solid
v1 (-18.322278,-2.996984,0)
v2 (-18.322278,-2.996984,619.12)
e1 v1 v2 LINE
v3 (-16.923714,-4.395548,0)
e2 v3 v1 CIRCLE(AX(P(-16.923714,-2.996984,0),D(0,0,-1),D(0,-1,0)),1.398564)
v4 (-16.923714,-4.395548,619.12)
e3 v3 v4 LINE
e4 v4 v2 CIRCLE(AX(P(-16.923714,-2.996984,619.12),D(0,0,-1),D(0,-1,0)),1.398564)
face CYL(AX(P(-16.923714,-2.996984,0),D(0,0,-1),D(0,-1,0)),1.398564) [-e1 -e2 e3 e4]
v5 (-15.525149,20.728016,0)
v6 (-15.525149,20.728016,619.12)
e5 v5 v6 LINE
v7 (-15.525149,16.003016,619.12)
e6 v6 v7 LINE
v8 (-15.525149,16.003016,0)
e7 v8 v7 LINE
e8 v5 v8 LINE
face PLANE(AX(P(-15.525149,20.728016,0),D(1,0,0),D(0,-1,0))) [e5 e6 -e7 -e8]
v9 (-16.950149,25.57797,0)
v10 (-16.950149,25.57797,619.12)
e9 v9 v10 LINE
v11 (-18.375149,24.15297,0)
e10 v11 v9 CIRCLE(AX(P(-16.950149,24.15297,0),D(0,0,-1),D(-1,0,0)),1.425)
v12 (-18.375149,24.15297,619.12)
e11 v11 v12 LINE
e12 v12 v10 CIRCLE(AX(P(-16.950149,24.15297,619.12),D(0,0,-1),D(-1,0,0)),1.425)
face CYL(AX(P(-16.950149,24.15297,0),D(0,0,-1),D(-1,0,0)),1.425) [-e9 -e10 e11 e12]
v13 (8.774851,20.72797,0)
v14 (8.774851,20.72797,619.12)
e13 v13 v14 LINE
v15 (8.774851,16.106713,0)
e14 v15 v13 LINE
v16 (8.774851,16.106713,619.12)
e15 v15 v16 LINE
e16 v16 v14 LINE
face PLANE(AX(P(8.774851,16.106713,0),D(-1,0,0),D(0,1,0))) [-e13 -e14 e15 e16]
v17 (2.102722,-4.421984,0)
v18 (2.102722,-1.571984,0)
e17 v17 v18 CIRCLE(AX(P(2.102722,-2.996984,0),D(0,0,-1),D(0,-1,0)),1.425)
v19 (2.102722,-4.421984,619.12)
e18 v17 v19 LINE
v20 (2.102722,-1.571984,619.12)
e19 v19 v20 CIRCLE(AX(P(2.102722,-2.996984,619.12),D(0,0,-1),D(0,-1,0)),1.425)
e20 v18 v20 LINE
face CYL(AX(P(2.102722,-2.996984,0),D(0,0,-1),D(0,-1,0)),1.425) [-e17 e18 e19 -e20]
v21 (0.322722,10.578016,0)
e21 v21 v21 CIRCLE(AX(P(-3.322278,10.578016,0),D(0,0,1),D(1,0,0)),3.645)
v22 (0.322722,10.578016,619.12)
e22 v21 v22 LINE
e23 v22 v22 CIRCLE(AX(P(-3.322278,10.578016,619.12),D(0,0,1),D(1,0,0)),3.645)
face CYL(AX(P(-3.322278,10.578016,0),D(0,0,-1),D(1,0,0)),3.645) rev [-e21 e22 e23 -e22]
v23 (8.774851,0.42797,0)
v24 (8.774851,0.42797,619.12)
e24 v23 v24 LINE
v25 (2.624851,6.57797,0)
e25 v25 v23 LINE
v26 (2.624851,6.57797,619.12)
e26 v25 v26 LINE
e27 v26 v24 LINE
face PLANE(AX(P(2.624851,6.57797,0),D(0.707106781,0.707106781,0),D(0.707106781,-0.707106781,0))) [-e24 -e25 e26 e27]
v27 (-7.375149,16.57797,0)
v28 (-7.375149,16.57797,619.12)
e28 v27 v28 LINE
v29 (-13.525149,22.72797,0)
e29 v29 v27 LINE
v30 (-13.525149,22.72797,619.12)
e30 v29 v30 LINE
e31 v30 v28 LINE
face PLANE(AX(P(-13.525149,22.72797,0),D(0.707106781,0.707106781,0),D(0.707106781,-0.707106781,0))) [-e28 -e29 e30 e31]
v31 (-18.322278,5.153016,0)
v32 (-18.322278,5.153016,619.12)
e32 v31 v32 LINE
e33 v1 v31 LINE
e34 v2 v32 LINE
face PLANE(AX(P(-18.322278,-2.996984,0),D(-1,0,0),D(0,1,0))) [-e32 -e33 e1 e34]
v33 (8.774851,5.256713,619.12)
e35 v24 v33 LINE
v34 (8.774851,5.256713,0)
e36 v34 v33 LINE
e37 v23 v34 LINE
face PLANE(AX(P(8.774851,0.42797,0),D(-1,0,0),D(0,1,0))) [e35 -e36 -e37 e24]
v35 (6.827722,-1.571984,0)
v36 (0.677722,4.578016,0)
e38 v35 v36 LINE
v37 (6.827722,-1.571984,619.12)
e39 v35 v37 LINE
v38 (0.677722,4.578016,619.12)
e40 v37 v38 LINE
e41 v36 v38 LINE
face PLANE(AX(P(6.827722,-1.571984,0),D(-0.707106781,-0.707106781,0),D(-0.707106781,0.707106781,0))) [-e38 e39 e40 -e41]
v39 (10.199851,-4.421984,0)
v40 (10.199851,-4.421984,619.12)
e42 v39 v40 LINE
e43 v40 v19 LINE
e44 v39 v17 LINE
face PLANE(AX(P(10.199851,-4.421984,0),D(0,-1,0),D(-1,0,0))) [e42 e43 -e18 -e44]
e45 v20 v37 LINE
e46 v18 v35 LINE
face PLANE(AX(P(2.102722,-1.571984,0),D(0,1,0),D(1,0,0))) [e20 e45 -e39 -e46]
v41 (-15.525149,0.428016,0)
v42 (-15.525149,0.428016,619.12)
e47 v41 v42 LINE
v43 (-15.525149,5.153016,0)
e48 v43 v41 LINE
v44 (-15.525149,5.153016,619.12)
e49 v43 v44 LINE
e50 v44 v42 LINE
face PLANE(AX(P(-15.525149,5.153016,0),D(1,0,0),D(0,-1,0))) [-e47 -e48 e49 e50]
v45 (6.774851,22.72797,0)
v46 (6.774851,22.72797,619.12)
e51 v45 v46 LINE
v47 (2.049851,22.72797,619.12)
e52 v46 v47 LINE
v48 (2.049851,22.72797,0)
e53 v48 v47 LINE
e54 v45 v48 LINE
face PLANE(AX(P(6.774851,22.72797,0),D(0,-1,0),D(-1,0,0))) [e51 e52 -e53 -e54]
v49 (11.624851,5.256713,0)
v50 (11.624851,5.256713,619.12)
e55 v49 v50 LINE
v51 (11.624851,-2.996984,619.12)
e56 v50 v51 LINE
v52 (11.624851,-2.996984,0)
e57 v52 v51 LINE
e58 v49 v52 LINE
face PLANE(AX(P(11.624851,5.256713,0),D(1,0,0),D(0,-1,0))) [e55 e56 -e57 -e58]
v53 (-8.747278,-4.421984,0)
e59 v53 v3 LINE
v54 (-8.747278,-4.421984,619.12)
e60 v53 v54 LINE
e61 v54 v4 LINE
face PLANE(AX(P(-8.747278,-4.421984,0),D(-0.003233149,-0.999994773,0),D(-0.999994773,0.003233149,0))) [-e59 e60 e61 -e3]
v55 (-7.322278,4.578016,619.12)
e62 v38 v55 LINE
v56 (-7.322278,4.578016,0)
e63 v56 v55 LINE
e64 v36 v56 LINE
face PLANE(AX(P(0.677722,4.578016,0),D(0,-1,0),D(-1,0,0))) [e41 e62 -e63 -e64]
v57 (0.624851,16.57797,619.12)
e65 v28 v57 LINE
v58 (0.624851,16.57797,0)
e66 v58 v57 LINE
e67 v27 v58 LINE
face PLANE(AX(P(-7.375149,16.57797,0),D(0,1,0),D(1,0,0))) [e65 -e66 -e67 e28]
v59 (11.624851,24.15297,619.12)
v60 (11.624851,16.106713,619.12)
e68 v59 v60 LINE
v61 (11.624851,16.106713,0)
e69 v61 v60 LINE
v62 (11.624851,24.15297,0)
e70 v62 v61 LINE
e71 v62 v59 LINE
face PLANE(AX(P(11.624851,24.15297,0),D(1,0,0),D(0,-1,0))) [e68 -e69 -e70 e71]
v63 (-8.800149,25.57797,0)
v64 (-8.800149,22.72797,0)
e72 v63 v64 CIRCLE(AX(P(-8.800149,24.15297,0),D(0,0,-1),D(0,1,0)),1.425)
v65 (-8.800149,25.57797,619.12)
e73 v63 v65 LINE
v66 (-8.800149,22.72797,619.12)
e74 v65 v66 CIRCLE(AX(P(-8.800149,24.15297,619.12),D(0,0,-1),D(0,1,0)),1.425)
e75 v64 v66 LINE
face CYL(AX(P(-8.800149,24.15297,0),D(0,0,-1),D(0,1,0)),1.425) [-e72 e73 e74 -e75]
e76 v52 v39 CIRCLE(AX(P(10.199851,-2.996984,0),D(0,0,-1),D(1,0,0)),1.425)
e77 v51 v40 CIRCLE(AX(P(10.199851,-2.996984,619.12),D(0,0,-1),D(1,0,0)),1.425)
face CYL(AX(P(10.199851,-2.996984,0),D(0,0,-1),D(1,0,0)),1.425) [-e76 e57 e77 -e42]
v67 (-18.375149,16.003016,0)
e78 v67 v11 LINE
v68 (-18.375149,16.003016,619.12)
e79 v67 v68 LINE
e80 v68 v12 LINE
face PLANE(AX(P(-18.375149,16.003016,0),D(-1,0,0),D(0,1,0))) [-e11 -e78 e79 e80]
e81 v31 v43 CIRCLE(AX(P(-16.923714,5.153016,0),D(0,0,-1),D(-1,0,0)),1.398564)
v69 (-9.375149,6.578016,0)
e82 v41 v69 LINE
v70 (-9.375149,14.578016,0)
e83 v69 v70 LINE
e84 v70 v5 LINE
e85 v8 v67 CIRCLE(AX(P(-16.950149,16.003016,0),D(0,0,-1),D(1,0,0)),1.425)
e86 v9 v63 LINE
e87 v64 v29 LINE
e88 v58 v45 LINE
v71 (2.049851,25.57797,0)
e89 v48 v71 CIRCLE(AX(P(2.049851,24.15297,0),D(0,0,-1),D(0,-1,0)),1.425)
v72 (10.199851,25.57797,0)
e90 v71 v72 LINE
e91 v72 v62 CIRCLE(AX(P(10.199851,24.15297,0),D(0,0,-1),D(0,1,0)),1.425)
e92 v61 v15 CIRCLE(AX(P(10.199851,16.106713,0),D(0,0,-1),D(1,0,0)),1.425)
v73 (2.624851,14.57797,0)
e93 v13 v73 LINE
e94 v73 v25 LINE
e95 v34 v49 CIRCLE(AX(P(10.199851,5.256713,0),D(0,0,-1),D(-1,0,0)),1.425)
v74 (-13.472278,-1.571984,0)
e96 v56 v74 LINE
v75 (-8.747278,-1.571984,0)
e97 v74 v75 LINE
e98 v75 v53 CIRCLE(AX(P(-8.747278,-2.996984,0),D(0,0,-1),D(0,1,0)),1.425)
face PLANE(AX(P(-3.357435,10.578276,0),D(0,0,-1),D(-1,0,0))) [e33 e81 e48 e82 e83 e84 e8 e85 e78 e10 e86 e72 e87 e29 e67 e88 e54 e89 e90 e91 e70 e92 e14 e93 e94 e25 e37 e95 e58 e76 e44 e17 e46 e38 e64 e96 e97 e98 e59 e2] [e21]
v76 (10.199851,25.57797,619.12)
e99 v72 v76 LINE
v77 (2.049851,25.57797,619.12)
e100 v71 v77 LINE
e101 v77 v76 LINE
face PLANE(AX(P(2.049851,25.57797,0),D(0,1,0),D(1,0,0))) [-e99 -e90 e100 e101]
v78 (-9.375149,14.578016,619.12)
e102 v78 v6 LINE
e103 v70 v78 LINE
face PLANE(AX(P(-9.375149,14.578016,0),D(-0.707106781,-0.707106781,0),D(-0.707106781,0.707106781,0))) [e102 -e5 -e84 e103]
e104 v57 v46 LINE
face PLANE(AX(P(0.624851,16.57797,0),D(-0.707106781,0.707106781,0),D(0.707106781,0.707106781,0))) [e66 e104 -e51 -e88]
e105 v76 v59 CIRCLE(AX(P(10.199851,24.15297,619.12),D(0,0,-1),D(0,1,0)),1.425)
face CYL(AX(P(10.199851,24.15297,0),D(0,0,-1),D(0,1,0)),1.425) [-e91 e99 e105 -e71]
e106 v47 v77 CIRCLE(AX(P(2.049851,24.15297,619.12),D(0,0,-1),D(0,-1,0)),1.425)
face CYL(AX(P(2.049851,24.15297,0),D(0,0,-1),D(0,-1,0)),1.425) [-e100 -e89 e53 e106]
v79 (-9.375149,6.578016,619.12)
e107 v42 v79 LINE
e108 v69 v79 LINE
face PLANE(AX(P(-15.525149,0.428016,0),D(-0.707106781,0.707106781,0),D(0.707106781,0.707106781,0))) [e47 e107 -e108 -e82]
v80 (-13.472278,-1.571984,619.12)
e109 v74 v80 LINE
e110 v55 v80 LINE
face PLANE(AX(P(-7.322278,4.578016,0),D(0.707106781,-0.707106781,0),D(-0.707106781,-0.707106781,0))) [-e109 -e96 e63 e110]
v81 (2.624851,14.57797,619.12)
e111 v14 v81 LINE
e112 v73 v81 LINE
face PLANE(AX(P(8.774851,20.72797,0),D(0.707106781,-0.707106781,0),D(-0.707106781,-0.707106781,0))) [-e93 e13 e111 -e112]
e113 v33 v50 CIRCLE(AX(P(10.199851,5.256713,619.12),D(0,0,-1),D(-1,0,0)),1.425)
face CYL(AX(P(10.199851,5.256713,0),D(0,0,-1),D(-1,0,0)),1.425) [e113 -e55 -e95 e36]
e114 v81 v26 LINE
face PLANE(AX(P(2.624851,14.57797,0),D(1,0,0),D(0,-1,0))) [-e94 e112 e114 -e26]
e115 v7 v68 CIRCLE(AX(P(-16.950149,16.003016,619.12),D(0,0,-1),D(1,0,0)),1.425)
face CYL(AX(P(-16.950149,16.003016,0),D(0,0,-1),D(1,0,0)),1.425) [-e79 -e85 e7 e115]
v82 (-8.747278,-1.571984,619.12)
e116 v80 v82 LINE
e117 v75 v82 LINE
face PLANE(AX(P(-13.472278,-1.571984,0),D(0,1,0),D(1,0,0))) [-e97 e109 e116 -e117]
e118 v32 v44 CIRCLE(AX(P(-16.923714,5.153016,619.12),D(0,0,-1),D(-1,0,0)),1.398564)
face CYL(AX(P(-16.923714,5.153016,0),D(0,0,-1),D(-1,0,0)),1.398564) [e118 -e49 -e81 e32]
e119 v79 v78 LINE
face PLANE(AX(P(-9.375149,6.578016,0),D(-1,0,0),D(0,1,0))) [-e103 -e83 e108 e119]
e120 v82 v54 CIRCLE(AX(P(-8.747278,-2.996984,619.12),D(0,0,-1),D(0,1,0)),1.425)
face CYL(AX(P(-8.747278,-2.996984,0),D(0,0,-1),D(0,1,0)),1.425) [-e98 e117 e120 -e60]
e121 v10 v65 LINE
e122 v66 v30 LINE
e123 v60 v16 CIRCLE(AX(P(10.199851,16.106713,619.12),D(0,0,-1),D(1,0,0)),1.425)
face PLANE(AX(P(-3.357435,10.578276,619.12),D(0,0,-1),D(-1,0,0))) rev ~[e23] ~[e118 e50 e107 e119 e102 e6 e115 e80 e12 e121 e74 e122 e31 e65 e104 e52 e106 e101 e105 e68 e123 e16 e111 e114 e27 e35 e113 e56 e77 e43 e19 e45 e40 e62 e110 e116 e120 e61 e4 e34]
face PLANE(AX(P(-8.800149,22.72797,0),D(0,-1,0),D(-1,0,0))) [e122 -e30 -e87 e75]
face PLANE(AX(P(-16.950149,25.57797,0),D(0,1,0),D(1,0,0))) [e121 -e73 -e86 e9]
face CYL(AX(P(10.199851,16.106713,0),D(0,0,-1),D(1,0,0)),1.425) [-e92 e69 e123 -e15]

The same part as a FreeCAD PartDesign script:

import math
import FreeCAD as App
import Part
import Sketcher

V = App.Vector
Q = App.Units.Quantity

doc = App.newDocument("Part")
body = doc.addObject("PartDesign::Body", "Body")

# Sketch on XY plane
sketch1 = doc.addObject("Sketcher::SketchObject", "Sketch")
body.addObject(sketch1)
sketch1.AttachmentSupport = (doc.XY_Plane, [""])
sketch1.MapMode = "FlatFace"
sketch1.addGeometry(Part.LineSegment(V(6.8, -1.6, 0), V(2.1, -1.6, 0)), False)
sketch1.addGeometry(Part.ArcOfCircle(Part.Circle(V(2.1, -3, 0), V(0, 0, 1), 1.4), math.radians(90), math.radians(270)), False)
sketch1.addGeometry(Part.LineSegment(V(2.1, -4.4, 0), V(10.2, -4.4, 0)), False)
sketch1.addGeometry(Part.ArcOfCircle(Part.Circle(V(10.2, -3, 0), V(0, 0, 1), 1.4), math.radians(-90), math.radians(0)), False)
sketch1.addGeometry(Part.LineSegment(V(11.6, -3, 0), V(11.6, 5.3, 0)), False)
sketch1.addGeometry(Part.ArcOfCircle(Part.Circle(V(10.2, 5.3, 0), V(0, 0, 1), 1.4), math.radians(0), math.radians(180)), False)
sketch1.addGeometry(Part.LineSegment(V(8.8, 5.3, 0), V(8.8, 0.4, 0)), False)
sketch1.addGeometry(Part.LineSegment(V(8.8, 0.4, 0), V(2.6, 6.6, 0)), False)
sketch1.addGeometry(Part.LineSegment(V(2.6, 6.6, 0), V(2.6, 14.6, 0)), False)
sketch1.addGeometry(Part.LineSegment(V(2.6, 14.6, 0), V(8.8, 20.7, 0)), False)
sketch1.addGeometry(Part.LineSegment(V(8.8, 20.7, 0), V(8.8, 16.1, 0)), False)
sketch1.addGeometry(Part.ArcOfCircle(Part.Circle(V(10.2, 16.1, 0), V(0, 0, 1), 1.4), math.radians(180), math.radians(360)), False)
sketch1.addGeometry(Part.LineSegment(V(11.6, 16.1, 0), V(11.6, 24.2, 0)), False)
sketch1.addGeometry(Part.ArcOfCircle(Part.Circle(V(10.2, 24.2, 0), V(0, 0, 1), 1.4), math.radians(0), math.radians(90)), False)
sketch1.addGeometry(Part.LineSegment(V(10.2, 25.6, 0), V(2, 25.6, 0)), False)
sketch1.addGeometry(Part.ArcOfCircle(Part.Circle(V(2, 24.2, 0), V(0, 0, 1), 1.4), math.radians(90), math.radians(270)), False)
sketch1.addGeometry(Part.LineSegment(V(2, 22.7, 0), V(6.8, 22.7, 0)), False)
sketch1.addGeometry(Part.LineSegment(V(6.8, 22.7, 0), V(0.6, 16.6, 0)), False)
sketch1.addGeometry(Part.LineSegment(V(0.6, 16.6, 0), V(-7.4, 16.6, 0)), False)
sketch1.addGeometry(Part.LineSegment(V(-7.4, 16.6, 0), V(-13.5, 22.7, 0)), False)
sketch1.addGeometry(Part.LineSegment(V(-13.5, 22.7, 0), V(-8.8, 22.7, 0)), False)
sketch1.addGeometry(Part.ArcOfCircle(Part.Circle(V(-8.8, 24.2, 0), V(0, 0, 1), 1.4), math.radians(-90), math.radians(90)), False)
sketch1.addGeometry(Part.LineSegment(V(-8.8, 25.6, 0), V(-17, 25.6, 0)), False)
sketch1.addGeometry(Part.ArcOfCircle(Part.Circle(V(-17, 24.2, 0), V(0, 0, 1), 1.4), math.radians(90), math.radians(180)), False)
sketch1.addGeometry(Part.LineSegment(V(-18.4, 24.2, 0), V(-18.4, 16, 0)), False)
sketch1.addGeometry(Part.ArcOfCircle(Part.Circle(V(-17, 16, 0), V(0, 0, 1), 1.4), math.radians(180), math.radians(360)), False)
sketch1.addGeometry(Part.LineSegment(V(-15.5, 16, 0), V(-15.5, 20.7, 0)), False)
sketch1.addGeometry(Part.LineSegment(V(-15.5, 20.7, 0), V(-9.4, 14.6, 0)), False)
sketch1.addGeometry(Part.LineSegment(V(-9.4, 14.6, 0), V(-9.4, 6.6, 0)), False)
sketch1.addGeometry(Part.LineSegment(V(-9.4, 6.6, 0), V(-15.5, 0.4, 0)), False)
sketch1.addGeometry(Part.LineSegment(V(-15.5, 0.4, 0), V(-15.5, 5.2, 0)), False)
sketch1.addGeometry(Part.ArcOfCircle(Part.Circle(V(-16.9, 5.2, 0), V(0, 0, 1), 1.4), math.radians(0), math.radians(180)), False)
sketch1.addGeometry(Part.LineSegment(V(-18.3, 5.2, 0), V(-18.3, -3, 0)), False)
sketch1.addGeometry(Part.ArcOfCircle(Part.Circle(V(-16.9, -3, 0), V(0, 0, 1), 1.4), math.radians(180), math.radians(270)), False)
sketch1.addGeometry(Part.LineSegment(V(-16.9, -4.4, 0), V(-8.7, -4.4, 0)), False)
sketch1.addGeometry(Part.ArcOfCircle(Part.Circle(V(-8.7, -3, 0), V(0, 0, 1), 1.4), math.radians(-90), math.radians(90)), False)
sketch1.addGeometry(Part.LineSegment(V(-8.7, -1.6, 0), V(-13.5, -1.6, 0)), False)
sketch1.addGeometry(Part.LineSegment(V(-13.5, -1.6, 0), V(-7.3, 4.6, 0)), False)
sketch1.addGeometry(Part.LineSegment(V(-7.3, 4.6, 0), V(0.7, 4.6, 0)), False)
sketch1.addGeometry(Part.LineSegment(V(0.7, 4.6, 0), V(6.8, -1.6, 0)), False)
sketch1.addGeometry(Part.Circle(V(-3.3, 10.6, 0), V(0, 0, 1), 3.6), False)
sketch1.addConstraint(Sketcher.Constraint("Tangent", 0, 2, 1, 1))
sketch1.addConstraint(Sketcher.Constraint("Tangent", 1, 2, 2, 1))
sketch1.addConstraint(Sketcher.Constraint("Tangent", 2, 2, 3, 1))
sketch1.addConstraint(Sketcher.Constraint("Tangent", 3, 2, 4, 1))
sketch1.addConstraint(Sketcher.Constraint("Tangent", 4, 2, 5, 1))
sketch1.addConstraint(Sketcher.Constraint("Tangent", 5, 2, 6, 1))
sketch1.addConstraint(Sketcher.Constraint("Coincident", 6, 2, 7, 1))
sketch1.addConstraint(Sketcher.Constraint("Coincident", 7, 2, 8, 1))
sketch1.addConstraint(Sketcher.Constraint("Coincident", 8, 2, 9, 1))
sketch1.addConstraint(Sketcher.Constraint("Coincident", 9, 2, 10, 1))
sketch1.addConstraint(Sketcher.Constraint("Tangent", 10, 2, 11, 1))
sketch1.addConstraint(Sketcher.Constraint("Tangent", 11, 2, 12, 1))
sketch1.addConstraint(Sketcher.Constraint("Tangent", 12, 2, 13, 1))
sketch1.addConstraint(Sketcher.Constraint("Tangent", 13, 2, 14, 1))
sketch1.addConstraint(Sketcher.Constraint("Tangent", 14, 2, 15, 1))
sketch1.addConstraint(Sketcher.Constraint("Tangent", 15, 2, 16, 1))
sketch1.addConstraint(Sketcher.Constraint("Coincident", 16, 2, 17, 1))
sketch1.addConstraint(Sketcher.Constraint("Coincident", 17, 2, 18, 1))
sketch1.addConstraint(Sketcher.Constraint("Coincident", 18, 2, 19, 1))
sketch1.addConstraint(Sketcher.Constraint("Coincident", 19, 2, 20, 1))
sketch1.addConstraint(Sketcher.Constraint("Tangent", 20, 2, 21, 1))
sketch1.addConstraint(Sketcher.Constraint("Tangent", 21, 2, 22, 1))
sketch1.addConstraint(Sketcher.Constraint("Tangent", 22, 2, 23, 1))
sketch1.addConstraint(Sketcher.Constraint("Tangent", 23, 2, 24, 1))
sketch1.addConstraint(Sketcher.Constraint("Tangent", 24, 2, 25, 1))
sketch1.addConstraint(Sketcher.Constraint("Tangent", 25, 2, 26, 1))
sketch1.addConstraint(Sketcher.Constraint("Coincident", 26, 2, 27, 1))
sketch1.addConstraint(Sketcher.Constraint("Coincident", 27, 2, 28, 1))
sketch1.addConstraint(Sketcher.Constraint("Coincident", 28, 2, 29, 1))
sketch1.addConstraint(Sketcher.Constraint("Coincident", 29, 2, 30, 1))
sketch1.addConstraint(Sketcher.Constraint("Tangent", 30, 2, 31, 1))
sketch1.addConstraint(Sketcher.Constraint("Tangent", 31, 2, 32, 1))
sketch1.addConstraint(Sketcher.Constraint("Tangent", 32, 2, 33, 1))
sketch1.addConstraint(Sketcher.Constraint("Coincident", 33, 2, 34, 1))
sketch1.addConstraint(Sketcher.Constraint("Coincident", 34, 2, 35, 1))
sketch1.addConstraint(Sketcher.Constraint("Tangent", 35, 2, 36, 1))
sketch1.addConstraint(Sketcher.Constraint("Coincident", 36, 2, 37, 1))
sketch1.addConstraint(Sketcher.Constraint("Coincident", 37, 2, 38, 1))
sketch1.addConstraint(Sketcher.Constraint("Coincident", 38, 2, 39, 1))
sketch1.addConstraint(Sketcher.Constraint("Coincident", 39, 2, 0, 1))
sketch1.addConstraint(Sketcher.Constraint("Horizontal", 0))
sketch1.addConstraint(Sketcher.Constraint("Horizontal", 2))
sketch1.addConstraint(Sketcher.Constraint("Vertical", 4))
sketch1.addConstraint(Sketcher.Constraint("Vertical", 6))
sketch1.addConstraint(Sketcher.Constraint("Vertical", 8))
sketch1.addConstraint(Sketcher.Constraint("Vertical", 10))
sketch1.addConstraint(Sketcher.Constraint("Vertical", 12))
sketch1.addConstraint(Sketcher.Constraint("Horizontal", 14))
sketch1.addConstraint(Sketcher.Constraint("Horizontal", 16))
sketch1.addConstraint(Sketcher.Constraint("Horizontal", 18))
sketch1.addConstraint(Sketcher.Constraint("Horizontal", 20))
sketch1.addConstraint(Sketcher.Constraint("Horizontal", 22))
sketch1.addConstraint(Sketcher.Constraint("Vertical", 24))
sketch1.addConstraint(Sketcher.Constraint("Vertical", 26))
sketch1.addConstraint(Sketcher.Constraint("Vertical", 28))
sketch1.addConstraint(Sketcher.Constraint("Vertical", 30))
sketch1.addConstraint(Sketcher.Constraint("Vertical", 32))
sketch1.addConstraint(Sketcher.Constraint("Horizontal", 36))
sketch1.addConstraint(Sketcher.Constraint("Horizontal", 38))
sketch1.addConstraint(Sketcher.Constraint("Equal", 1, 3))
sketch1.addConstraint(Sketcher.Constraint("Equal", 3, 5))
sketch1.addConstraint(Sketcher.Constraint("Equal", 5, 11))
sketch1.addConstraint(Sketcher.Constraint("Equal", 11, 13))
sketch1.addConstraint(Sketcher.Constraint("Equal", 13, 15))
sketch1.addConstraint(Sketcher.Constraint("Equal", 15, 21))
sketch1.addConstraint(Sketcher.Constraint("Equal", 21, 23))
sketch1.addConstraint(Sketcher.Constraint("Equal", 23, 25))
sketch1.addConstraint(Sketcher.Constraint("Equal", 31, 33))
sketch1.addConstraint(Sketcher.Constraint("Equal", 25, 35))
sketch1.addConstraint(Sketcher.Constraint("Perpendicular", 7, 9))
sketch1.addConstraint(Sketcher.Constraint("Parallel", 9, 17))
sketch1.addConstraint(Sketcher.Constraint("Perpendicular", 17, 19))
sketch1.addConstraint(Sketcher.Constraint("Parallel", 19, 27))
sketch1.addConstraint(Sketcher.Constraint("Perpendicular", 27, 29))
sketch1.addConstraint(Sketcher.Constraint("Parallel", 29, 37))
sketch1.addConstraint(Sketcher.Constraint("Perpendicular", 37, 39))
sketch1.addConstraint(Sketcher.Constraint("Horizontal", 15, 3, 21, 3))
sketch1.addConstraint(Sketcher.Constraint("Horizontal", 3, 3, 33, 3))
sketch1.addConstraint(Sketcher.Constraint("Horizontal", 33, 3, 35, 3))
sketch1.addConstraint(Sketcher.Constraint("Vertical", 5, 3, 11, 3))
sketch1.addConstraint(Sketcher.Constraint("Vertical", 26, 2, 29, 2))
sketch1.addConstraint(Sketcher.Constraint("Vertical", 31, 3, 33, 2))
sketch1.addConstraint(Sketcher.Constraint("Vertical", 35, 3, 34, 2))
sketch1.addConstraint(Sketcher.Constraint("Equal", 0, 16))
sketch1.addConstraint(Sketcher.Constraint("Equal", 16, 20))
sketch1.addConstraint(Sketcher.Constraint("Equal", 14, 22))
sketch1.addConstraint(Sketcher.Constraint("Equal", 20, 36))
sketch1.addConstraint(Sketcher.Constraint("Equal", 18, 38))
sketch1.addConstraint(Sketcher.Constraint("Equal", 38, 8))
sketch1.addConstraint(Sketcher.Constraint("Equal", 36, 26))
sketch1.addConstraint(Sketcher.Constraint("Equal", 8, 28))
sketch1.addConstraint(Sketcher.Constraint("Equal", 26, 30))
sketch1.addConstraint(Sketcher.Constraint("Equal", 22, 32))
sketch1.addConstraint(Sketcher.Constraint("Equal", 7, 9))
sketch1.addConstraint(Sketcher.Constraint("Equal", 9, 17))
sketch1.addConstraint(Sketcher.Constraint("Equal", 19, 27))
sketch1.addConstraint(Sketcher.Constraint("Equal", 29, 37))
sketch1.addConstraint(Sketcher.Constraint("Diameter", 40, Q("7.29 mm")))
sketch1.addConstraint(Sketcher.Constraint("DistanceX", 18, 2, 18, 1, Q("8 mm")))
sketch1.addConstraint(Sketcher.Constraint("Radius", 1, Q("1.425 mm")))
sketch1.addConstraint(Sketcher.Constraint("DistanceX", 21, 3, 13, 3, Q("19 mm")))
sketch1.addConstraint(Sketcher.Constraint("DistanceX", 8, 2, 11, 2, Q("9 mm")))
sketch1.addConstraint(Sketcher.Constraint("DistanceY", 9, 2, 15, 2, Q("2 mm")))
sketch1.addConstraint(Sketcher.Constraint("DistanceX", 16, 2, 9, 2, Q("2 mm")))
sketch1.addConstraint(Sketcher.Constraint("DistanceY", 40, 3, 27, 2, Q("4 mm")))
sketch1.addConstraint(Sketcher.Constraint("DistanceX", 37, 2, 40, 3, Q("4 mm")))
sketch1.addConstraint(Sketcher.Constraint("DistanceY", 5, 3, 11, 3, Q("10.85 mm")))
sketch1.addConstraint(Sketcher.Constraint("Radius", 31, Q("1.398564 mm")))
sketch1.addConstraint(Sketcher.Constraint("DistanceX", 32, 2, 34, 2, Q("9.575 mm")))
sketch1.addConstraint(Sketcher.Constraint("DistanceY", 4, 1, 4, 2, Q("8.253697 mm")))
sketch1.addConstraint(Sketcher.Constraint("DistanceY", 6, 2, 6, 1, Q("4.828744 mm")))
sketch1.addConstraint(Sketcher.Constraint("DistanceX", -1, 1, 3, 3, Q("10.199851 mm")))
sketch1.addConstraint(Sketcher.Constraint("DistanceY", -1, 1, 13, 3, Q("24.15297 mm")))
pad1 = doc.addObject("PartDesign::Pad", "Pad")
body.addObject(pad1)
pad1.Profile = sketch1
pad1.Length = 619.12

doc.recompute()
